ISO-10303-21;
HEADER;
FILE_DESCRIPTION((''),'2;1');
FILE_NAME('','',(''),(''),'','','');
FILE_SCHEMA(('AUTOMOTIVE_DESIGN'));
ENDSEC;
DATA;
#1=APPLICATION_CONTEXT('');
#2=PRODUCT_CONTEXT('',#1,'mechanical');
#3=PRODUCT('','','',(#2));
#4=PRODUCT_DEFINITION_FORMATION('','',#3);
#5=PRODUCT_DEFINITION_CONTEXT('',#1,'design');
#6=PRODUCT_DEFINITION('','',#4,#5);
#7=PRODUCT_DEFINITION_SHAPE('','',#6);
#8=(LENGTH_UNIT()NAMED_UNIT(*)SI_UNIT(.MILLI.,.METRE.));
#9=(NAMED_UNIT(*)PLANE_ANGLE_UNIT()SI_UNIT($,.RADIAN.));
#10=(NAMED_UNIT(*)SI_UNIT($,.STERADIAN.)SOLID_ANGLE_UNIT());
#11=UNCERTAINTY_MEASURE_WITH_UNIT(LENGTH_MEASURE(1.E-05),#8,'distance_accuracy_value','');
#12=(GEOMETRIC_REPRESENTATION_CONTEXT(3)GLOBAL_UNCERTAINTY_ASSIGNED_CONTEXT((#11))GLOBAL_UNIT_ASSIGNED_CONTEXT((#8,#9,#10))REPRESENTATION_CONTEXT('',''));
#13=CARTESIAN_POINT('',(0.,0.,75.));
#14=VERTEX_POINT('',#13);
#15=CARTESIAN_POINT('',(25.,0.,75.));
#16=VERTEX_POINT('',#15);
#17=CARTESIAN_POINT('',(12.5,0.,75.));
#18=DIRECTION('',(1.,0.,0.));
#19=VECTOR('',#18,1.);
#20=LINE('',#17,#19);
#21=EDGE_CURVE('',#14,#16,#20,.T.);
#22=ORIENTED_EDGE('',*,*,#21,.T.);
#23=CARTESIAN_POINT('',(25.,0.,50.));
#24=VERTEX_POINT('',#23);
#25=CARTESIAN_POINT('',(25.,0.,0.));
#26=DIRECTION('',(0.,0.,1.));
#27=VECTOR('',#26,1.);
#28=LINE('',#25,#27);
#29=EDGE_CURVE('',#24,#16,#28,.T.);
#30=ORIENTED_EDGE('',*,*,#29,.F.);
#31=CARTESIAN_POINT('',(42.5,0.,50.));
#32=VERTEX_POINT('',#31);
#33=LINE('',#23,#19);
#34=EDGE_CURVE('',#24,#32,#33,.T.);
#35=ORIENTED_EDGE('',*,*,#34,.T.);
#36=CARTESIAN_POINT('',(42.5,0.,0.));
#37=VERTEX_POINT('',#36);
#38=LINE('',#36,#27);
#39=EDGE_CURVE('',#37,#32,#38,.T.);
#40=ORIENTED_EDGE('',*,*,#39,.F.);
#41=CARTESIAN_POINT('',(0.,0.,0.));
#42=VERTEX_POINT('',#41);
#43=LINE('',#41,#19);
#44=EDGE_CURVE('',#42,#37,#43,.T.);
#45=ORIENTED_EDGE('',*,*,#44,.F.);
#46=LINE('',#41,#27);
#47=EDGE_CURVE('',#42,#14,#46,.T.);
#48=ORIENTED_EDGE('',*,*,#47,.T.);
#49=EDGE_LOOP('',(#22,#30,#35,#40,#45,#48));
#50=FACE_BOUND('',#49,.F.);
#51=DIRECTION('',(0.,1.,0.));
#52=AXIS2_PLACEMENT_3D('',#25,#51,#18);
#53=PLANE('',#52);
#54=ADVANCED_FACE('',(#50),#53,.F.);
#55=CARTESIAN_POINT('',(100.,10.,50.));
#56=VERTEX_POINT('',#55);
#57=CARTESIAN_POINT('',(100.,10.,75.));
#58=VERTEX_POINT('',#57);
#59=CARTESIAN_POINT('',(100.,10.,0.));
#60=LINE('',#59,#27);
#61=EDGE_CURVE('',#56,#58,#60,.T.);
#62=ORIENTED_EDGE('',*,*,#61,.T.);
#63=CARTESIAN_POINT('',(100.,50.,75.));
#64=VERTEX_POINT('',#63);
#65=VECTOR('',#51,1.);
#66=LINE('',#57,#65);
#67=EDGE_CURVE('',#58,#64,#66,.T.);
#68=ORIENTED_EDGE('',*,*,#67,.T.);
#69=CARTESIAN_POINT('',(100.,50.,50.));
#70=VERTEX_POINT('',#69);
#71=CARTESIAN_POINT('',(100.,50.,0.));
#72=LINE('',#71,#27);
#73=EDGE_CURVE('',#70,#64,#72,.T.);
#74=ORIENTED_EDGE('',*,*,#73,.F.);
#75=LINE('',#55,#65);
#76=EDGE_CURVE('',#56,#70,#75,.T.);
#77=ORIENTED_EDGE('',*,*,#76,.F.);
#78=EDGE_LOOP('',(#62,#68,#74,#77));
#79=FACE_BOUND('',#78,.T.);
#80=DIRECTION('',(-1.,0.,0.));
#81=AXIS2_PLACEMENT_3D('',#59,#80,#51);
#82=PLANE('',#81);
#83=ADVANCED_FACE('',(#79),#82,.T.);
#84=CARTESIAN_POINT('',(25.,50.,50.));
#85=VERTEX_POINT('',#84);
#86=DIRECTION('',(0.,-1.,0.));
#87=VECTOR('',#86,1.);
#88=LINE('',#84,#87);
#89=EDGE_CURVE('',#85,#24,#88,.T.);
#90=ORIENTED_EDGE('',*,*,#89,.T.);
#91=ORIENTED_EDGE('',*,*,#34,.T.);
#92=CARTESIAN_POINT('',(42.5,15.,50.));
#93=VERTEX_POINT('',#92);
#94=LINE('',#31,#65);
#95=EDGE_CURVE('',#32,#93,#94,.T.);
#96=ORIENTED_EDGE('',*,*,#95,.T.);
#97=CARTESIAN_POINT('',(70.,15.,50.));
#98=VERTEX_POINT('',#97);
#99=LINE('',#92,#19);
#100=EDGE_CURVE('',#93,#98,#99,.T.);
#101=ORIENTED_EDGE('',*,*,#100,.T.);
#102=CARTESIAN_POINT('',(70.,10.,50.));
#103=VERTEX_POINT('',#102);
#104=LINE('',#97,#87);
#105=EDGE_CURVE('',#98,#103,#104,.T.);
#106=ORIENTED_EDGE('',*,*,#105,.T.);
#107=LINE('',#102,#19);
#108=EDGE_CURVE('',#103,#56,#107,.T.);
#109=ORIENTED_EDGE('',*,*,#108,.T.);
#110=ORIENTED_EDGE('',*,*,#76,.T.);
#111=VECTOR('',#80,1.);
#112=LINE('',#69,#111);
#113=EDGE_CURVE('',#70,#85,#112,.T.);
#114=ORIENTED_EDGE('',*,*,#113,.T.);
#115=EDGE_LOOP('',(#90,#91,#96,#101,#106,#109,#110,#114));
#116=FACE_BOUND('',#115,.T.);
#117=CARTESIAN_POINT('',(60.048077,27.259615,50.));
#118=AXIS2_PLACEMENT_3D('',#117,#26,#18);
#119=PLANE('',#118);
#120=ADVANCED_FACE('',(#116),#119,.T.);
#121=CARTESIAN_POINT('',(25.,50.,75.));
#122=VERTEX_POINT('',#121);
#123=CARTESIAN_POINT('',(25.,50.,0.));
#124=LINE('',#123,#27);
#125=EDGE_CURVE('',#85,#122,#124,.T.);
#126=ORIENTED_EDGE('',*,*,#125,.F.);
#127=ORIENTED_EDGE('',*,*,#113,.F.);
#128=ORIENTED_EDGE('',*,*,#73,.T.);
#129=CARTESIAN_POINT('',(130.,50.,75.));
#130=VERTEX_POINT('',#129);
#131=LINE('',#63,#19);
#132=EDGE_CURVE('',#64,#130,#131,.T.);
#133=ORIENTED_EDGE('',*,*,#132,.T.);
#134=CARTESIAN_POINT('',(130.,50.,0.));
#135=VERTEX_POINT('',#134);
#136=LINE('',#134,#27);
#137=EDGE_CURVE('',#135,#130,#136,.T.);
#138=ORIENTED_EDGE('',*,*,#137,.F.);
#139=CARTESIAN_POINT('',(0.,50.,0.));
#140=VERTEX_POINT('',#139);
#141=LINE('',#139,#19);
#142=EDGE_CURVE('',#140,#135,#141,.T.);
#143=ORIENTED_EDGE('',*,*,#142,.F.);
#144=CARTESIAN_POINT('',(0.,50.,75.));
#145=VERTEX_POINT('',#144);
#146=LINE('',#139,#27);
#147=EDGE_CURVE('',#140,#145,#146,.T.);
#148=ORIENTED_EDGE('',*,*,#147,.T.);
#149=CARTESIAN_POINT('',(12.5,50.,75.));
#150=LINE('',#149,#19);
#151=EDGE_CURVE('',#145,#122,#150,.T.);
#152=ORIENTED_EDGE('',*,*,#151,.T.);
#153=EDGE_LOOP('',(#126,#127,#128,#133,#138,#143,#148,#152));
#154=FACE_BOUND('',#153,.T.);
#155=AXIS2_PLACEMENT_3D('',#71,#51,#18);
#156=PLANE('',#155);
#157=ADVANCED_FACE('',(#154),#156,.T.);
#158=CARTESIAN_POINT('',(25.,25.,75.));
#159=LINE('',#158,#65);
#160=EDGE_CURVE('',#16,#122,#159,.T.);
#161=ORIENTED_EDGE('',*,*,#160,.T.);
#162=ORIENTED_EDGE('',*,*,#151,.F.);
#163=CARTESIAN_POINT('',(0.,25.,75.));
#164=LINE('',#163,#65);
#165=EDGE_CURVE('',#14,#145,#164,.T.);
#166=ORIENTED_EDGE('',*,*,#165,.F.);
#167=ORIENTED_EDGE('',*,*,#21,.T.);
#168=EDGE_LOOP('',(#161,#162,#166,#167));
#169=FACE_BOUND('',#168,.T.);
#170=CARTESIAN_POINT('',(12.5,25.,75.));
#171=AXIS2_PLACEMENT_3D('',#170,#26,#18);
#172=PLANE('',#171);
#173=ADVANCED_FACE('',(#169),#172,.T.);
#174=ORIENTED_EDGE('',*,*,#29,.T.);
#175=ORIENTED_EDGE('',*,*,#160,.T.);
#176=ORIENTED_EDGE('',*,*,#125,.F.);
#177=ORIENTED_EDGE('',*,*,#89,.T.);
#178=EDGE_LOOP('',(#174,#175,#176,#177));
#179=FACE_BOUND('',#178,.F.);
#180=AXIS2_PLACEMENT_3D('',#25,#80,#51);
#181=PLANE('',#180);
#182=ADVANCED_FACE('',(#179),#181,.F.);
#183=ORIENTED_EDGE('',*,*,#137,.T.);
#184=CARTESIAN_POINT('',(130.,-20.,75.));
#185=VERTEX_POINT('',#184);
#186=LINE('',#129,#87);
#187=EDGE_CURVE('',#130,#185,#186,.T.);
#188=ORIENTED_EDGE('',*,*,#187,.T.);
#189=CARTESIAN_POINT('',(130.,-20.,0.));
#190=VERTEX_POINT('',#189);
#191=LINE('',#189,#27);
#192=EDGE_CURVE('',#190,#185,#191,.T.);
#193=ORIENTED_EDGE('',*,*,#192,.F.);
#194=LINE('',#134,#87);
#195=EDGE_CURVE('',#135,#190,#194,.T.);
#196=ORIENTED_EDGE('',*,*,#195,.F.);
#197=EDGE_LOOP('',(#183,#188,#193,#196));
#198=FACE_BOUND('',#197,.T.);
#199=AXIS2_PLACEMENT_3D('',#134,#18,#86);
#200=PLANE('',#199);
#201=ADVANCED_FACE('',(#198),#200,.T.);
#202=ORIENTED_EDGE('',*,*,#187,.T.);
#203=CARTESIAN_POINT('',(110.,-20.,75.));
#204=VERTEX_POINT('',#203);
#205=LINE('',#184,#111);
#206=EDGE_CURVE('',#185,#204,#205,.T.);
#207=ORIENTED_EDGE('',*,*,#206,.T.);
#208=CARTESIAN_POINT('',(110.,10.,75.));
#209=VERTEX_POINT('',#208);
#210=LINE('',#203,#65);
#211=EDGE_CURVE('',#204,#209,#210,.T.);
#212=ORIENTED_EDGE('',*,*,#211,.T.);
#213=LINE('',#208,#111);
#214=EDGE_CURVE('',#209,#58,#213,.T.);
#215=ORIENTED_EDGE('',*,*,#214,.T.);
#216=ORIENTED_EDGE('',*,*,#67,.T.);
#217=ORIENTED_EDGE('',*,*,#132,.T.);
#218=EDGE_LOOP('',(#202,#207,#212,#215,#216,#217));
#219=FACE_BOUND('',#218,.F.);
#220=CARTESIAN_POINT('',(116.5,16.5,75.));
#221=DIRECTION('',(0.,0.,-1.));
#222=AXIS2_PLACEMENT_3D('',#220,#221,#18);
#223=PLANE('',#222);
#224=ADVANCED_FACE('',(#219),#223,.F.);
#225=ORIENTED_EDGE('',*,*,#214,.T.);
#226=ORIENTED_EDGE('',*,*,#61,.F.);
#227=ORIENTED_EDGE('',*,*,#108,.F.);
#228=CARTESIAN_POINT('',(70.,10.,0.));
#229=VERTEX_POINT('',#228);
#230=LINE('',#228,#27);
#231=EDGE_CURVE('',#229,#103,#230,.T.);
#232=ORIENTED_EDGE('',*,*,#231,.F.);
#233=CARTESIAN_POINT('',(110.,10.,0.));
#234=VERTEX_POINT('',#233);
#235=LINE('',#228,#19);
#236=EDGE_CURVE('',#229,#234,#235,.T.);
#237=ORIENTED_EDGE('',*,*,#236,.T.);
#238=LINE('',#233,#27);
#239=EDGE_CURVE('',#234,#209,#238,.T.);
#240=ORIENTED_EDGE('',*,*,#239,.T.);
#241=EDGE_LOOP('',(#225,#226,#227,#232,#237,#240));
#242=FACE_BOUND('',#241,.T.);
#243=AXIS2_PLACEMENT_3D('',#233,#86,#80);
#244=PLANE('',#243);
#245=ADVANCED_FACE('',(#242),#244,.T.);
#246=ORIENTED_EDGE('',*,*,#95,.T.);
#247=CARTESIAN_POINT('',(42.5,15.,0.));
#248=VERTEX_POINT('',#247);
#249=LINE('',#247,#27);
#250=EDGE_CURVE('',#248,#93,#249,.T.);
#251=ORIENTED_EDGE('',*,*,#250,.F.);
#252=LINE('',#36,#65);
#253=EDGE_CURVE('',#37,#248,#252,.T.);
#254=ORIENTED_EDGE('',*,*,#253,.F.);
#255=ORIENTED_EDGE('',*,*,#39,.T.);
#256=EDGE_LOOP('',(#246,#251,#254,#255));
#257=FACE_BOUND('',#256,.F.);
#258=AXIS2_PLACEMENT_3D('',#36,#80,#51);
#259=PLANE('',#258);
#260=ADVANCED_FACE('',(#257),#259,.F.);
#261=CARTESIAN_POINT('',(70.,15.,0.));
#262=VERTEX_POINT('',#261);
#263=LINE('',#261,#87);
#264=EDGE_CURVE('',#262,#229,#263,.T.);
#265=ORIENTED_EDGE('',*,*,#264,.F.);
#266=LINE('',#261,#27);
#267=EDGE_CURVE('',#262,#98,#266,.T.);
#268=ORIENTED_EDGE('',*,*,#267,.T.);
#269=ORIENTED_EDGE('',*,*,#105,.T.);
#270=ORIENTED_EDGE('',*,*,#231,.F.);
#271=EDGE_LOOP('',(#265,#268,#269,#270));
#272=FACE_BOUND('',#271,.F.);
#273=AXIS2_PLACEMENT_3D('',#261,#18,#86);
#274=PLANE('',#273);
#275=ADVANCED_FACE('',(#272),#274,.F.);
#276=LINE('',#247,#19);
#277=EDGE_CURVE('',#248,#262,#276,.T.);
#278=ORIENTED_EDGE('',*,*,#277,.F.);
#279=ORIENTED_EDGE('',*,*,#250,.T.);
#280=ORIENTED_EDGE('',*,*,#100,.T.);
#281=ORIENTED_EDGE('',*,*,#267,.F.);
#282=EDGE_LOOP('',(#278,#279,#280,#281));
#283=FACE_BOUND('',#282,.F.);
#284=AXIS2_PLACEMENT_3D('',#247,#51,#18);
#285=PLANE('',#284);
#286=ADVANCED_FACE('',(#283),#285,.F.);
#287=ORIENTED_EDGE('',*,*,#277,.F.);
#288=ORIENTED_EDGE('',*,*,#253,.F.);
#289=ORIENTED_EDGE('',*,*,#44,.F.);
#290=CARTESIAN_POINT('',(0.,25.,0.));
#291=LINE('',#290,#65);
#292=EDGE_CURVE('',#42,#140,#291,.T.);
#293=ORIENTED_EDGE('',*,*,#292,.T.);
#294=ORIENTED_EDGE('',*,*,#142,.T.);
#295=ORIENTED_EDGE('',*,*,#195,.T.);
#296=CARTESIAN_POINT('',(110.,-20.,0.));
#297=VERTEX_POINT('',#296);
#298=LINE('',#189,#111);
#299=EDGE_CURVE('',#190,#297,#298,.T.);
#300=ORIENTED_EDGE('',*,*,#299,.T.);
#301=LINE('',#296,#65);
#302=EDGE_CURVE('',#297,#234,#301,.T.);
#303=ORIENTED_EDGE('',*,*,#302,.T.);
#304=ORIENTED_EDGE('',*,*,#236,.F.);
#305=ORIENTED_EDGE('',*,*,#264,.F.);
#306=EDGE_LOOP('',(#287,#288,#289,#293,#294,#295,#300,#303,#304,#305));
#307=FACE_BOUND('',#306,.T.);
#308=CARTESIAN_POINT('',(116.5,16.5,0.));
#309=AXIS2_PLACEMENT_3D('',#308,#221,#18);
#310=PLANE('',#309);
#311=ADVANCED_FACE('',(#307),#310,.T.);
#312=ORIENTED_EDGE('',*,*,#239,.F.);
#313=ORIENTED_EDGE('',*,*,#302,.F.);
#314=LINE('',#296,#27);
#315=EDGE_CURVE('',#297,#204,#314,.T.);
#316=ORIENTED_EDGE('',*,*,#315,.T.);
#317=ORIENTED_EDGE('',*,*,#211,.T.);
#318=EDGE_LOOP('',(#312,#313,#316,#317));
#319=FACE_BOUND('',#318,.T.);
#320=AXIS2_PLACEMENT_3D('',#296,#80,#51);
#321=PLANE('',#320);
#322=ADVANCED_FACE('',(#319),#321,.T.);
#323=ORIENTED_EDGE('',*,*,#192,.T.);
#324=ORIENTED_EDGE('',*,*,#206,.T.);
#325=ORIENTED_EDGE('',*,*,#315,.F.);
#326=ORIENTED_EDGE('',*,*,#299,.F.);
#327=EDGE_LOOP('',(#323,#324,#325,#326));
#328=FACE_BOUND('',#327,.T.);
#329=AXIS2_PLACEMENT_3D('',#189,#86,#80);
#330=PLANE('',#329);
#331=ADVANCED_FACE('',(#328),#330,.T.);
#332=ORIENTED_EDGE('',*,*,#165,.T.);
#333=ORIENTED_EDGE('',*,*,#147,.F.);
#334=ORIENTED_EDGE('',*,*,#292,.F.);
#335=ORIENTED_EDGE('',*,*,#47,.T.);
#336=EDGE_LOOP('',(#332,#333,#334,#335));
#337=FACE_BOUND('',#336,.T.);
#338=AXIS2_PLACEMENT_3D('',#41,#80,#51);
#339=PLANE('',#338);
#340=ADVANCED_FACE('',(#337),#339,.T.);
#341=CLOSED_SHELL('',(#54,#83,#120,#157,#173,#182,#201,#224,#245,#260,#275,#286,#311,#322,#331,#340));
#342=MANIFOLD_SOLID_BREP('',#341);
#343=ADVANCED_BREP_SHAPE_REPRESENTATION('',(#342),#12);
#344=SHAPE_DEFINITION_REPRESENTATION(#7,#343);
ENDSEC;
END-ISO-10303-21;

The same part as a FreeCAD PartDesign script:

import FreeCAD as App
import Part
import Sketcher

V = App.Vector

doc = App.newDocument("Part")
params = doc.addObject("Spreadsheet::Sheet", "Params")
for row, (alias, value) in enumerate([
    ("sketch1_width", "25 mm"),
    ("sketch1_height", "50 mm"),
    ("pad1_length", "75 mm"),
    ("sketch2_width", "30 mm"),
    ("sketch2_width2", "75 mm"),
    ("sketch2_height", "50 mm"),
    ("sketch2_height2", "15 mm"),
    ("sketch2_height3", "5 mm"),
    ("pad2_length", "50 mm"),
    ("sketch3_width", "10 mm"),
    ("sketch3_width2", "30 mm"),
    ("sketch3_height", "40 mm"),
    ("pad3_length", "75 mm"),
], start=1):
    params.set(f"A{row}", alias)
    params.set(f"B{row}", "=" + value)
    params.setAlias(f"B{row}", alias)

body = doc.addObject("PartDesign::Body", "Body")

sketch1 = body.newObject("Sketcher::SketchObject", "Sketch")
sketch1.AttachmentSupport = (doc.getObject("XY_Plane"), [""])
sketch1.MapMode = "FlatFace"
sketch1.addGeometry(Part.LineSegment(V(0, 50, 0), V(0, 0, 0)), False)
sketch1.addGeometry(Part.LineSegment(V(0, 0, 0), V(25, 0, 0)), False)
sketch1.addGeometry(Part.LineSegment(V(25, 0, 0), V(25, 50, 0)), False)
sketch1.addGeometry(Part.LineSegment(V(25, 50, 0), V(0, 50, 0)), False)
sketch1.addConstraint(Sketcher.Constraint("Coincident", 0, 2, 1, 1))
sketch1.addConstraint(Sketcher.Constraint("Coincident", 1, 2, 2, 1))
sketch1.addConstraint(Sketcher.Constraint("Coincident", 2, 2, 3, 1))
sketch1.addConstraint(Sketcher.Constraint("Coincident", 3, 2, 0, 1))
sketch1.addConstraint(Sketcher.Constraint("Vertical", 0))
sketch1.addConstraint(Sketcher.Constraint("Horizontal", 1))
sketch1.addConstraint(Sketcher.Constraint("Vertical", 2))
sketch1.addConstraint(Sketcher.Constraint("Horizontal", 3))
sketch1.addConstraint(Sketcher.Constraint("Coincident", 0, 2, -1, 1))
sketch1.addConstraint(Sketcher.Constraint("DistanceX", 1, 1, 1, 2, 25.0))
sketch1.addConstraint(Sketcher.Constraint("DistanceY", 0, 2, 0, 1, 50.0))
sketch1.setExpression("Constraints[9]", "Params.sketch1_width")
sketch1.setExpression("Constraints[10]", "Params.sketch1_height")
pad1 = body.newObject("PartDesign::Pad", "Pad")
pad1.Profile = sketch1
pad1.setExpression("Length", "Params.pad1_length")

sketch2 = body.newObject("Sketcher::SketchObject", "Sketch001")
sketch2.AttachmentSupport = (doc.getObject("XY_Plane"), [""])
sketch2.MapMode = "FlatFace"
sketch2.addGeometry(Part.LineSegment(V(25, 50, 0), V(25, 0, 0)), False)
sketch2.addGeometry(Part.LineSegment(V(25, 0, 0), V(42, 0, 0)), False)
sketch2.addGeometry(Part.LineSegment(V(42, 0, 0), V(42, 15, 0)), False)
sketch2.addGeometry(Part.LineSegment(V(42, 15, 0), V(70, 15, 0)), False)
sketch2.addGeometry(Part.LineSegment(V(70, 15, 0), V(70, 10, 0)), False)
sketch2.addGeometry(Part.LineSegment(V(70, 10, 0), V(100, 10, 0)), False)
sketch2.addGeometry(Part.LineSegment(V(100, 10, 0), V(100, 50, 0)), False)
sketch2.addGeometry(Part.LineSegment(V(100, 50, 0), V(25, 50, 0)), False)
sketch2.addConstraint(Sketcher.Constraint("Coincident", 0, 2, 1, 1))
sketch2.addConstraint(Sketcher.Constraint("Coincident", 1, 2, 2, 1))
sketch2.addConstraint(Sketcher.Constraint("Coincident", 2, 2, 3, 1))
sketch2.addConstraint(Sketcher.Constraint("Coincident", 3, 2, 4, 1))
sketch2.addConstraint(Sketcher.Constraint("Coincident", 4, 2, 5, 1))
sketch2.addConstraint(Sketcher.Constraint("Coincident", 5, 2, 6, 1))
sketch2.addConstraint(Sketcher.Constraint("Coincident", 6, 2, 7, 1))
sketch2.addConstraint(Sketcher.Constraint("Coincident", 7, 2, 0, 1))
sketch2.addConstraint(Sketcher.Constraint("Vertical", 0))
sketch2.addConstraint(Sketcher.Constraint("Horizontal", 1))
sketch2.addConstraint(Sketcher.Constraint("Vertical", 2))
sketch2.addConstraint(Sketcher.Constraint("Horizontal", 3))
sketch2.addConstraint(Sketcher.Constraint("Vertical", 4))
sketch2.addConstraint(Sketcher.Constraint("Horizontal", 5))
sketch2.addConstraint(Sketcher.Constraint("Vertical", 6))
sketch2.addConstraint(Sketcher.Constraint("Horizontal", 7))
sketch2.addConstraint(Sketcher.Constraint("PointOnObject", 0, 2, -1))
sketch2.addConstraint(Sketcher.Constraint("DistanceX", 5, 1, 5, 2, 30.0))
sketch2.addConstraint(Sketcher.Constraint("DistanceX", 7, 2, 7, 1, 75.0))
sketch2.addConstraint(Sketcher.Constraint("DistanceY", 0, 2, 0, 1, 50.0))
sketch2.addConstraint(Sketcher.Constraint("DistanceY", 2, 1, 2, 2, 15.0))
sketch2.addConstraint(Sketcher.Constraint("DistanceY", 4, 2, 4, 1, 5.0))
sketch2.addConstraint(Sketcher.Constraint("DistanceX", 1, 1, 1, 2, 17.5))
sketch2.addConstraint(Sketcher.Constraint("DistanceX", -1, 1, 0, 2, 25.0))
sketch2.setExpression("Constraints[17]", "Params.sketch2_width")
sketch2.setExpression("Constraints[18]", "Params.sketch2_width2")
sketch2.setExpression("Constraints[19]", "Params.sketch2_height")
sketch2.setExpression("Constraints[20]", "Params.sketch2_height2")
sketch2.setExpression("Constraints[21]", "Params.sketch2_height3")
pad2 = body.newObject("PartDesign::Pad", "Pad001")
pad2.Profile = sketch2
pad2.setExpression("Length", "Params.pad2_length")

sketch3 = body.newObject("Sketcher::SketchObject", "Sketch002")
sketch3.AttachmentSupport = (doc.getObject("XY_Plane"), [""])
sketch3.MapMode = "FlatFace"
sketch3.addGeometry(Part.LineSegment(V(110, 10, 0), V(100, 10, 0)), False)
sketch3.addGeometry(Part.LineSegment(V(100, 10, 0), V(100, 50, 0)), False)
sketch3.addGeometry(Part.LineSegment(V(100, 50, 0), V(130, 50, 0)), False)
sketch3.addGeometry(Part.LineSegment(V(130, 50, 0), V(130, -20, 0)), False)
sketch3.addGeometry(Part.LineSegment(V(130, -20, 0), V(110, -20, 0)), False)
sketch3.addGeometry(Part.LineSegment(V(110, -20, 0), V(110, 10, 0)), False)
sketch3.addConstraint(Sketcher.Constraint("Coincident", 0, 2, 1, 1))
sketch3.addConstraint(Sketcher.Constraint("Coincident", 1, 2, 2, 1))
sketch3.addConstraint(Sketcher.Constraint("Coincident", 2, 2, 3, 1))
sketch3.addConstraint(Sketcher.Constraint("Coincident", 3, 2, 4, 1))
sketch3.addConstraint(Sketcher.Constraint("Coincident", 4, 2, 5, 1))
sketch3.addConstraint(Sketcher.Constraint("Coincident", 5, 2, 0, 1))
sketch3.addConstraint(Sketcher.Constraint("Horizontal", 0))
sketch3.addConstraint(Sketcher.Constraint("Vertical", 1))
sketch3.addConstraint(Sketcher.Constraint("Horizontal", 2))
sketch3.addConstraint(Sketcher.Constraint("Vertical", 3))
sketch3.addConstraint(Sketcher.Constraint("Horizontal", 4))
sketch3.addConstraint(Sketcher.Constraint("Vertical", 5))
sketch3.addConstraint(Sketcher.Constraint("Equal", 2, 5))
sketch3.addConstraint(Sketcher.Constraint("DistanceX", 0, 2, 0, 1, 10.0))
sketch3.addConstraint(Sketcher.Constraint("DistanceX", 2, 1, 2, 2, 30.0))
sketch3.addConstraint(Sketcher.Constraint("DistanceY", 1, 1, 1, 2, 40.0))
sketch3.addConstraint(Sketcher.Constraint("DistanceX", -1, 1, 0, 2, 100.0))
sketch3.addConstraint(Sketcher.Constraint("DistanceY", -1, 1, 0, 2, 10.0))
sketch3.setExpression("Constraints[13]", "Params.sketch3_width")
sketch3.setExpression("Constraints[14]", "Params.sketch3_width2")
sketch3.setExpression("Constraints[15]", "Params.sketch3_height")
pad3 = body.newObject("PartDesign::Pad", "Pad002")
pad3.Profile = sketch3
pad3.setExpression("Length", "Params.pad3_length")

doc.recompute()
